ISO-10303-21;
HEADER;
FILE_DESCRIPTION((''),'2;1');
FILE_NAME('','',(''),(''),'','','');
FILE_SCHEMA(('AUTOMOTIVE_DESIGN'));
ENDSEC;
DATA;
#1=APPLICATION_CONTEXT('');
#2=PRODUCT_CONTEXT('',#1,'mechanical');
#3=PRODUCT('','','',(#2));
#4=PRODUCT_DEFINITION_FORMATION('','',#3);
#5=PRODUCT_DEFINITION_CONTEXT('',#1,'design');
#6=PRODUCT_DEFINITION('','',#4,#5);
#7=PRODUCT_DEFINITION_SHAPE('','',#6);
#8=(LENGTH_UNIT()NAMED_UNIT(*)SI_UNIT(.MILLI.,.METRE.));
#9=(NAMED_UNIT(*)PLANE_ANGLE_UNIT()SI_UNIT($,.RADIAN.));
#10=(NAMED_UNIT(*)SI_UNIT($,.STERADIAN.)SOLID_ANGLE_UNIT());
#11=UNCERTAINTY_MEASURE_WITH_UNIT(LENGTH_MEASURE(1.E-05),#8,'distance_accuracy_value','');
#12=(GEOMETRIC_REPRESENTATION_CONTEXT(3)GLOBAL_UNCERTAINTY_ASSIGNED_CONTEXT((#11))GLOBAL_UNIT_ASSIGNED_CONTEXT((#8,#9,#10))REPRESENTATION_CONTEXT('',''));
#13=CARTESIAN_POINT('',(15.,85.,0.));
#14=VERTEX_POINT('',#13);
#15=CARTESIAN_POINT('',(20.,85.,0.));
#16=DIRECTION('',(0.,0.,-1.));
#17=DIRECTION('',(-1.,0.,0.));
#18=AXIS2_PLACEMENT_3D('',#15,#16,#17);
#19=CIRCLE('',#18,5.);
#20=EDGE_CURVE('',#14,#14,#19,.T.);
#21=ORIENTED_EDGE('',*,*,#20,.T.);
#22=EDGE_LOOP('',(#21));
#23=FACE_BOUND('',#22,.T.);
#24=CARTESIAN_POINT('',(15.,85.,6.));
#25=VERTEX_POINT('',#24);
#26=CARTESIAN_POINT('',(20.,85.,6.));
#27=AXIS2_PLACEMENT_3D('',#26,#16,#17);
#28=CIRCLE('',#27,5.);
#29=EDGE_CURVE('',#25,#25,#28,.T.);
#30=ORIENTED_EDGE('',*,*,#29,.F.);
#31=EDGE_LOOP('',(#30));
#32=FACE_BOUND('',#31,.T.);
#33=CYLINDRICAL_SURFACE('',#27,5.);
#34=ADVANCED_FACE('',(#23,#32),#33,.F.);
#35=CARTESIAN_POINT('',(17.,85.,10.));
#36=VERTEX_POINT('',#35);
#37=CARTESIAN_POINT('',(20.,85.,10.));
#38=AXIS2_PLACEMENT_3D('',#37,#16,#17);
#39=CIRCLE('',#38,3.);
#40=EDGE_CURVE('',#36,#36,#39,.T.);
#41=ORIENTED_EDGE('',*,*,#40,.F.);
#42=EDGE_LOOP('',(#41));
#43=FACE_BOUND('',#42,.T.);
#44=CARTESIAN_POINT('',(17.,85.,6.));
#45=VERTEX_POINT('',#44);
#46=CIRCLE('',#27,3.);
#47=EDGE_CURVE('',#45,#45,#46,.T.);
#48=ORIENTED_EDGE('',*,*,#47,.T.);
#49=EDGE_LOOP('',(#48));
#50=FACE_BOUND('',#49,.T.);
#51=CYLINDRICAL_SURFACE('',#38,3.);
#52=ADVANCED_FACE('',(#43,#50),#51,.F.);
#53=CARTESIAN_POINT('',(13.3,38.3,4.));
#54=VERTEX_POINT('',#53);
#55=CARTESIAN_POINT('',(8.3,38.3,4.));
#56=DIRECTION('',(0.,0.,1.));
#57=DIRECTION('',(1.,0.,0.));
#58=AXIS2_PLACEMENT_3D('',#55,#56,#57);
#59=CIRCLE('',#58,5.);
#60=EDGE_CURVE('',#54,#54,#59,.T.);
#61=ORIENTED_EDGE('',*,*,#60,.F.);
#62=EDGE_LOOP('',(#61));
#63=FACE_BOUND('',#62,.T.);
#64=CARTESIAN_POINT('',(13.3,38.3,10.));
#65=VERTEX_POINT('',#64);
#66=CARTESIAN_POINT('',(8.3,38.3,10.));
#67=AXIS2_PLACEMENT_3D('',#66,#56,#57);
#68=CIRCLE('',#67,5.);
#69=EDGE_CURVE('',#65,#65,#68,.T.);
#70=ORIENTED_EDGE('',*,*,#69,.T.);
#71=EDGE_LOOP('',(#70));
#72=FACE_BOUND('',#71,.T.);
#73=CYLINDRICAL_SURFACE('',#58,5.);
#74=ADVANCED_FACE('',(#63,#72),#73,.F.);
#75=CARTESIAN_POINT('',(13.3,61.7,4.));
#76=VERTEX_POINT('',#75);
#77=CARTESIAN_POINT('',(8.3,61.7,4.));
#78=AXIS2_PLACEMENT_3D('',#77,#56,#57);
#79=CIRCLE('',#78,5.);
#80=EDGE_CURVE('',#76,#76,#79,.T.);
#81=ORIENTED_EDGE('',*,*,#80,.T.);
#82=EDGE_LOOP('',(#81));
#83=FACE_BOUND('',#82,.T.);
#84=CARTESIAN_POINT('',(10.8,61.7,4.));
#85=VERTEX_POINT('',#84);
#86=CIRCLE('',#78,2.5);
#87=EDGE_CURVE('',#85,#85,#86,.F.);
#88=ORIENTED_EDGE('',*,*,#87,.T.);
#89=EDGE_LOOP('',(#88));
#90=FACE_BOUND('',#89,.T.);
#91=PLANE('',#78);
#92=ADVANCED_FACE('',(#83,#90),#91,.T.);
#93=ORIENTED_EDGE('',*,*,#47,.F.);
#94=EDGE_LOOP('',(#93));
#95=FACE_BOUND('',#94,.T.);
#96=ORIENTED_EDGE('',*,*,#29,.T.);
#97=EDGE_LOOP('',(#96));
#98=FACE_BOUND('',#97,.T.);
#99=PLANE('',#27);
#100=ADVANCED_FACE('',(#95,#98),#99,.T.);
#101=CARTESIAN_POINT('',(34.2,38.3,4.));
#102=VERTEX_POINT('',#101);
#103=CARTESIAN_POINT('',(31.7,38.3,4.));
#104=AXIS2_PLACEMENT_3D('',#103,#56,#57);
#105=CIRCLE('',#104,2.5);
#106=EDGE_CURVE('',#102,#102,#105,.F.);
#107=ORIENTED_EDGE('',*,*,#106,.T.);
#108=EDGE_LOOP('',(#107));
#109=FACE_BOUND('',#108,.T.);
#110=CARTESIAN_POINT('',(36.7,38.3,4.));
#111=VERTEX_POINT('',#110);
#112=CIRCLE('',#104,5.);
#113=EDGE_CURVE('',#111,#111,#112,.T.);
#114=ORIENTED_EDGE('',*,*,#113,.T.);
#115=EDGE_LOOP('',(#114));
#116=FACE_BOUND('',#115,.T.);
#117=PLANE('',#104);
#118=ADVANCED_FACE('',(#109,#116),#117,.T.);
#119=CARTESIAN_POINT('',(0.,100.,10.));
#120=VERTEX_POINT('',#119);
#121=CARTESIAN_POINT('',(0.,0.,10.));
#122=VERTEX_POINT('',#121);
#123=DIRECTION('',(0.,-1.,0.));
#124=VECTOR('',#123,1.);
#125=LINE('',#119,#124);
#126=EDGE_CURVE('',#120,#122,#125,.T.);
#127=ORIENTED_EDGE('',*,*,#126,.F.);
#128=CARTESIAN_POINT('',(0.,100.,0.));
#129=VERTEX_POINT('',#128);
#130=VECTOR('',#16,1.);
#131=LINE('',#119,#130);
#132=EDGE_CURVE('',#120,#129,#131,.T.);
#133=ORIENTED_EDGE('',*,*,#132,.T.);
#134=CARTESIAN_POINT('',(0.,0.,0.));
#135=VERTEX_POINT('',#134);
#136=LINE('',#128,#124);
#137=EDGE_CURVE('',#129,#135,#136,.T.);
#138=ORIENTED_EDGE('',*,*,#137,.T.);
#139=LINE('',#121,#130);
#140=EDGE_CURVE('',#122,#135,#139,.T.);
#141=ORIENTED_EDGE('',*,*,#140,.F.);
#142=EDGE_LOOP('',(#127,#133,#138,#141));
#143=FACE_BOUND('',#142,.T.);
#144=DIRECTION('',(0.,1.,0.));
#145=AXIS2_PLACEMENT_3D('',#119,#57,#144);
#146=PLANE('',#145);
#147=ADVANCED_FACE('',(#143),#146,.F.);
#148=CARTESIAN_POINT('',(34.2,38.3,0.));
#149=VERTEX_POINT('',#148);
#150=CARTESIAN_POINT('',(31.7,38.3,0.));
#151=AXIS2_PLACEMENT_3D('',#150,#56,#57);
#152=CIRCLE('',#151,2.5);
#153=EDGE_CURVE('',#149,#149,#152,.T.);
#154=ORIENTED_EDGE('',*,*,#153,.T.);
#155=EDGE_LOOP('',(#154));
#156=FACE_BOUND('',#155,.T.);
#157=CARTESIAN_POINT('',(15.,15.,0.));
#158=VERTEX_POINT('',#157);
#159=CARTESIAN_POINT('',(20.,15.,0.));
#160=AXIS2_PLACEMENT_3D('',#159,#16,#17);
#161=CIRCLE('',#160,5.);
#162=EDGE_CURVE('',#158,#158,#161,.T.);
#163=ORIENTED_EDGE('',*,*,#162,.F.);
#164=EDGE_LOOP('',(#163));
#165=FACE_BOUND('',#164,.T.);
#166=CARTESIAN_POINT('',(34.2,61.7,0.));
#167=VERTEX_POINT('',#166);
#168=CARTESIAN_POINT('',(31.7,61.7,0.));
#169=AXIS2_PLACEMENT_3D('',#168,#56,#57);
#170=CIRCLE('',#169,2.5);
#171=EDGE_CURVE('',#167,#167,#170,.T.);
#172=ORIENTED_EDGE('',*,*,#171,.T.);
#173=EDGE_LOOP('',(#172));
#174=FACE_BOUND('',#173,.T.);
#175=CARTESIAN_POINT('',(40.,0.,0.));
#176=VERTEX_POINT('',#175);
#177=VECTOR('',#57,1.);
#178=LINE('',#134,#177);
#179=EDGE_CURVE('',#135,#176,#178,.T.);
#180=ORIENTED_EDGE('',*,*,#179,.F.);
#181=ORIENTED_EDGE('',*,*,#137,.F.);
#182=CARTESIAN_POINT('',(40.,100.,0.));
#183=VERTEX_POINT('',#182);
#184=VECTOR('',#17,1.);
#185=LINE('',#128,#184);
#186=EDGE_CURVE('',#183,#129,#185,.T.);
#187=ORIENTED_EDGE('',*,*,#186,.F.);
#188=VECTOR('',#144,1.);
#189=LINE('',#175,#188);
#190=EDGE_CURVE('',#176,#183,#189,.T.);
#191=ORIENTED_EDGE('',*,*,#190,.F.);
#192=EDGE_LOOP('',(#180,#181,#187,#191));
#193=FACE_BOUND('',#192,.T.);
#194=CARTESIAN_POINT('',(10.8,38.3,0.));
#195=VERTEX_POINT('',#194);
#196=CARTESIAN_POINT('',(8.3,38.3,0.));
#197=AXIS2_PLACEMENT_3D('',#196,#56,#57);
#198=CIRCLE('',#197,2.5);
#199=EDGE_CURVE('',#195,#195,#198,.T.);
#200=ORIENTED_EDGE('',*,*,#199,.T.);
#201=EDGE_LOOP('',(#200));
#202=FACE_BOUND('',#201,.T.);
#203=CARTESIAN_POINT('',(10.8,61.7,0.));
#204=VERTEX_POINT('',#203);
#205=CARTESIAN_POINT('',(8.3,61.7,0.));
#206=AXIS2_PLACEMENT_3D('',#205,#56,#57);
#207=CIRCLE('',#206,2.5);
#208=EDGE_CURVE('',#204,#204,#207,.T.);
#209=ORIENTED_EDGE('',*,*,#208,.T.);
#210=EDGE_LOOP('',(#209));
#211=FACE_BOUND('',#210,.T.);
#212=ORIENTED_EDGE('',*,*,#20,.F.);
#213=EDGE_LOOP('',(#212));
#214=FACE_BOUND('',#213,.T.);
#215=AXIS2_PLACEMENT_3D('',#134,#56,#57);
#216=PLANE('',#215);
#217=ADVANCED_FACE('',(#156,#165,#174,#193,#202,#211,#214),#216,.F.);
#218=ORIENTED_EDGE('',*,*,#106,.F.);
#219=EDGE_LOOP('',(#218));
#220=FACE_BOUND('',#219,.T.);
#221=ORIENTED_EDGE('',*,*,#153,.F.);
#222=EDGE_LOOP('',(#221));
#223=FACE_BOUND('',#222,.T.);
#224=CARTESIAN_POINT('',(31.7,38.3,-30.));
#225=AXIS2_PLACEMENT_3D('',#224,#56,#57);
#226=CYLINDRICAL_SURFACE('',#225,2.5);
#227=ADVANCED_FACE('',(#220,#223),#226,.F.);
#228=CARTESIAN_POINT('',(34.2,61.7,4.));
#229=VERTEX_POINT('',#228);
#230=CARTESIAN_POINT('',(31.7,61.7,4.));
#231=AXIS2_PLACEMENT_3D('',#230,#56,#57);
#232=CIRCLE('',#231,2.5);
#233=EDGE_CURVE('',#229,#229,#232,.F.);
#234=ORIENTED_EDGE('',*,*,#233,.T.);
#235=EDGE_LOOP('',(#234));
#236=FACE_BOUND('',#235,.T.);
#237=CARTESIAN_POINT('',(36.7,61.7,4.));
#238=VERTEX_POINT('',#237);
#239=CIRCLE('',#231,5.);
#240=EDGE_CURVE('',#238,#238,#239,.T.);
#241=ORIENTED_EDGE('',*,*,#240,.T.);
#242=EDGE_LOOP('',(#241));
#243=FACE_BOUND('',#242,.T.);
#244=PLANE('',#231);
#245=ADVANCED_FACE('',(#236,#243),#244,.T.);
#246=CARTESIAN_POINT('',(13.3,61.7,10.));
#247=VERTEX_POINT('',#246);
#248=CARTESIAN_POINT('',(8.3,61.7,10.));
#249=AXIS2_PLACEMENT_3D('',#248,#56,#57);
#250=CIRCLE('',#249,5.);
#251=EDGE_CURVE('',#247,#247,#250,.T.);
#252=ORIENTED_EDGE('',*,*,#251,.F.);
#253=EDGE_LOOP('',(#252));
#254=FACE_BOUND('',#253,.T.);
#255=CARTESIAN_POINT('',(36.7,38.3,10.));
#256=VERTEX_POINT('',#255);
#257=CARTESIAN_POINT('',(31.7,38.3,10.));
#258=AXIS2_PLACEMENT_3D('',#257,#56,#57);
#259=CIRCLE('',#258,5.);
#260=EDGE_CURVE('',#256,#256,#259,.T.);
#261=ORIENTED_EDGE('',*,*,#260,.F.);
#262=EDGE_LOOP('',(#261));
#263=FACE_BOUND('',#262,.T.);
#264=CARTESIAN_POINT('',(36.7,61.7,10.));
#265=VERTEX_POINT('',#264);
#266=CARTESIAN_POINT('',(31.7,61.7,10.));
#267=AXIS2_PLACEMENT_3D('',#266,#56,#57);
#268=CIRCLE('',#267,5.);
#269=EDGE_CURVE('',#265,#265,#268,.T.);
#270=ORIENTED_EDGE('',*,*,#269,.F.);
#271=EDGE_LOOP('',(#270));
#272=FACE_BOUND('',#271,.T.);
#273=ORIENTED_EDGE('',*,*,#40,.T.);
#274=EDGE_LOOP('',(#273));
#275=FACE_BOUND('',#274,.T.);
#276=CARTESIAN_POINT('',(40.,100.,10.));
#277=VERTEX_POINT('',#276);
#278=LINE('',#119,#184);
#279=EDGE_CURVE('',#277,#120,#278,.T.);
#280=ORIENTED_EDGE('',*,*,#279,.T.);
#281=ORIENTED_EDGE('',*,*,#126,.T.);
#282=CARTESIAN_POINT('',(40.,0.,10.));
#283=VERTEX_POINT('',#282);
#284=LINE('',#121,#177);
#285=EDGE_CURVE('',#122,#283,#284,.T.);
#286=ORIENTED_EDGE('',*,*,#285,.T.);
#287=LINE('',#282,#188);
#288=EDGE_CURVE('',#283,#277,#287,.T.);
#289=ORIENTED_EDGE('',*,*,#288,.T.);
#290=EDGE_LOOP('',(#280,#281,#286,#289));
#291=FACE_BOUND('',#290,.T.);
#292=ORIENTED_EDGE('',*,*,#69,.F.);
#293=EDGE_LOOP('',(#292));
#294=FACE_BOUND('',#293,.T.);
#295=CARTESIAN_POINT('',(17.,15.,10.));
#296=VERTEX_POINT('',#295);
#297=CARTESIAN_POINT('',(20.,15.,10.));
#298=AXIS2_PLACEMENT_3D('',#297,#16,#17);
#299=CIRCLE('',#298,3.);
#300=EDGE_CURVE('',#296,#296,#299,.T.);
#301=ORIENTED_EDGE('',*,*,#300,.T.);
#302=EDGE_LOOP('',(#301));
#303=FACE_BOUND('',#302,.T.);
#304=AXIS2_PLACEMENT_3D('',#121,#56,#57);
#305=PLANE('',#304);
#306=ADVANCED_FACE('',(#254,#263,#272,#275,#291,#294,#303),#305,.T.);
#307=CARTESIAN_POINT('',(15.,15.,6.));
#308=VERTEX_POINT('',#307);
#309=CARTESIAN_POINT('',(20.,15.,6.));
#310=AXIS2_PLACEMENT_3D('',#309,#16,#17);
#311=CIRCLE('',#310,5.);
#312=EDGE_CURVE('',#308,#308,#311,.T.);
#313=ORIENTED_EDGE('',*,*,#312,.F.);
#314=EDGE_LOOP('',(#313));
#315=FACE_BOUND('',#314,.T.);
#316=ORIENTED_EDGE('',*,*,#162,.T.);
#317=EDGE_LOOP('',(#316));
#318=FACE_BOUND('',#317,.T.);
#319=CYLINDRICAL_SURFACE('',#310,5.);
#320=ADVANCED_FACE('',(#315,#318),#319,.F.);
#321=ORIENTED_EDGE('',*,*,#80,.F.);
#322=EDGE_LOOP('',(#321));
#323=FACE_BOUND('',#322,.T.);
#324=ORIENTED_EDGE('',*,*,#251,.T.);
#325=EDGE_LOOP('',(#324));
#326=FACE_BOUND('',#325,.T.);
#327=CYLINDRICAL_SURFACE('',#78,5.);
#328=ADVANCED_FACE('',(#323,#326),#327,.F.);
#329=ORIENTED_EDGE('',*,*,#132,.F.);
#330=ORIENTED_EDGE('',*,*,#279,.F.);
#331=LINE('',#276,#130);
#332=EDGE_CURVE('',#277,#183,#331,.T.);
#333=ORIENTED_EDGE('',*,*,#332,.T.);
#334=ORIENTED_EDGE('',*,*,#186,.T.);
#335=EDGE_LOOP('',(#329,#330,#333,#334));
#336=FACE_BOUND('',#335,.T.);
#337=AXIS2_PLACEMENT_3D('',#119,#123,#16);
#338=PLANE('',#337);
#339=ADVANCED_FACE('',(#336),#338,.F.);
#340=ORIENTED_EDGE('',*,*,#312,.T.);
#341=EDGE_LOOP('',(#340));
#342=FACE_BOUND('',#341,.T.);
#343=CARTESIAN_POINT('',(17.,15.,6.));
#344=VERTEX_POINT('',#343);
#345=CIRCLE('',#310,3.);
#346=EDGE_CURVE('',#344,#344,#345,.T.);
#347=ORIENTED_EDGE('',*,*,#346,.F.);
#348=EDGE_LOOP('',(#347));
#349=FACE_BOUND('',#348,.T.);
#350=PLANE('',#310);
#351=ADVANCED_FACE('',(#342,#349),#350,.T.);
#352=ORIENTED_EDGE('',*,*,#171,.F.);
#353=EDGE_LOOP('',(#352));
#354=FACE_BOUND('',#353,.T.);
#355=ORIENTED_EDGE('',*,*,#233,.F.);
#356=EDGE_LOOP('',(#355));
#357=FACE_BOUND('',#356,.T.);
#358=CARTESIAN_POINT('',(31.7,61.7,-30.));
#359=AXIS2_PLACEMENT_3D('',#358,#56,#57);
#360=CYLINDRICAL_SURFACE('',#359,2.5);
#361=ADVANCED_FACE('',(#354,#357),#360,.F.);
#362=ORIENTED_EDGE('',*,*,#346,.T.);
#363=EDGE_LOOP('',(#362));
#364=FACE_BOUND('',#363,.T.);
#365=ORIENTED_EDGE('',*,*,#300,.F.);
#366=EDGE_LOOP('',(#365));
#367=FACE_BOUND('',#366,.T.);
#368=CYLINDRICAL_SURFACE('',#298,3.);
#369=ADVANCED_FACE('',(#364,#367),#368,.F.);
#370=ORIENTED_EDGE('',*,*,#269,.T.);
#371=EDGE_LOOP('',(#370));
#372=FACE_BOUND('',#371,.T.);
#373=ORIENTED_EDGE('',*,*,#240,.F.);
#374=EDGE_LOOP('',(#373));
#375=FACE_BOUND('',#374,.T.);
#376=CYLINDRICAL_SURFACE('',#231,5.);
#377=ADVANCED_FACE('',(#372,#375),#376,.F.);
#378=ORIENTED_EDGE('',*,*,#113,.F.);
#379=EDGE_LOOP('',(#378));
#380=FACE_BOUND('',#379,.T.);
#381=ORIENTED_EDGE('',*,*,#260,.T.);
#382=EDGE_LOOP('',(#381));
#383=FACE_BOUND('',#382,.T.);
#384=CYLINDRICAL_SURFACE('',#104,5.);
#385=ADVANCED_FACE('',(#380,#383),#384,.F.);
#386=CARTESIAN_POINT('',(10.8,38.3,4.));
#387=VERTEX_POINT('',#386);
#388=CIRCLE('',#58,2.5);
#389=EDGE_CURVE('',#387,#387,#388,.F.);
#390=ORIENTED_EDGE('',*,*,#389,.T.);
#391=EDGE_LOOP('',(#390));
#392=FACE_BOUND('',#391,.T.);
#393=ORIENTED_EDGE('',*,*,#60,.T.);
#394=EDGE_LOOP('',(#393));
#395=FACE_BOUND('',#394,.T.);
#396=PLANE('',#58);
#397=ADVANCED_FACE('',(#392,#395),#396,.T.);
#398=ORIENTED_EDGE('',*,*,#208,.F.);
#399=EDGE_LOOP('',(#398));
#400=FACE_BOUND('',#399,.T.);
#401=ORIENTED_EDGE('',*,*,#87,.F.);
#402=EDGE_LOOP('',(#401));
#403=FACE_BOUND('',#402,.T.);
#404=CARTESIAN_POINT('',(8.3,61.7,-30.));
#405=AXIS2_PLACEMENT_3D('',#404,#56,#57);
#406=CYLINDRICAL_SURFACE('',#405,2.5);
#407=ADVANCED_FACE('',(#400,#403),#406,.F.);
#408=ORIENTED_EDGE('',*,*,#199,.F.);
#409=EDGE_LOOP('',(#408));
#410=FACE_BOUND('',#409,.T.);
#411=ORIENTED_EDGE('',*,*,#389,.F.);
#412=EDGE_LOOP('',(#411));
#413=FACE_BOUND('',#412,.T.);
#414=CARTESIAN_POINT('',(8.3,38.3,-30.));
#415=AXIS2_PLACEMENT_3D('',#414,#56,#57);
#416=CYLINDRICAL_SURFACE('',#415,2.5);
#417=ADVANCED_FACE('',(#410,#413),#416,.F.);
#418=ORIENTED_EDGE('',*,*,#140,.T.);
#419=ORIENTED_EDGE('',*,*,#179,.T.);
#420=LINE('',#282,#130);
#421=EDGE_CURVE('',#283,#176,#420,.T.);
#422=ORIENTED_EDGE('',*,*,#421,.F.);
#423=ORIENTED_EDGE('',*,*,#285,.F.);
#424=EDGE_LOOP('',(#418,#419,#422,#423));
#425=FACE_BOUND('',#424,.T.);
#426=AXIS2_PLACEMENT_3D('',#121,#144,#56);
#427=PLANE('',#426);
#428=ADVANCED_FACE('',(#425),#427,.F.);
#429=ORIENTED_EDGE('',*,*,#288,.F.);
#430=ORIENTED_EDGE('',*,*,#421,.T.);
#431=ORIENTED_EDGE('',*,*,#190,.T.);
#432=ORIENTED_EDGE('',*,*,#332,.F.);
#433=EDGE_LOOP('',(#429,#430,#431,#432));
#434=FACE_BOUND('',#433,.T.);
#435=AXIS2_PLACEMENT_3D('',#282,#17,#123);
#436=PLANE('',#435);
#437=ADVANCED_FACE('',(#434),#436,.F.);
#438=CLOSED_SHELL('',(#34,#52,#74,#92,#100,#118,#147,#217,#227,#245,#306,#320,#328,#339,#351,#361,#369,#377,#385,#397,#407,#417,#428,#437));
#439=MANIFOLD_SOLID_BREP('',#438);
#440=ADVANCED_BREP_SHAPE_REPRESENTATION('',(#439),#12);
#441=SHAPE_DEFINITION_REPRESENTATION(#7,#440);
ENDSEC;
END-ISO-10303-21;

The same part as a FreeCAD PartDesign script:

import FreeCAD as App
import Part
import Sketcher
Q = App.Units.Quantity


def add_polygon(sketch, points):
    """Adds a closed chain of lines whose ends are joined by coincident constraints."""
    first, n = sketch.GeometryCount, len(points)
    for a, b in zip(points, points[1:] + points[:1]):
        sketch.addGeometry(Part.LineSegment(App.Vector(*a, 0), App.Vector(*b, 0)), False)
    for i in range(n):
        sketch.addConstraint(Sketcher.Constraint("Coincident", first + i, 2, first + (i + 1) % n, 1))

doc = App.newDocument("Part")
body = doc.addObject("PartDesign::Body", "Body")

sketch1 = doc.addObject("Sketcher::SketchObject", "Sketch")
body.addObject(sketch1)
sketch1.AttachmentSupport = (doc.XY_Plane, [""])
sketch1.MapMode = "FlatFace"
add_polygon(sketch1, [(0, 100), (0, 0), (40, 0), (40, 100)])
sketch1.addConstraint([
    Sketcher.Constraint("Vertical", 0),
    Sketcher.Constraint("Horizontal", 1),
    Sketcher.Constraint("Vertical", 2),
    Sketcher.Constraint("Horizontal", 3),
    Sketcher.Constraint("Coincident", 0, 2, -1, 1),
    Sketcher.Constraint("DistanceX", 1, 1, 1, 2, Q("40 mm")),
    Sketcher.Constraint("DistanceY", 0, 2, 0, 1, Q("100 mm")),
])
pad1 = doc.addObject("PartDesign::Pad", "Pad")
body.addObject(pad1)
pad1.Profile = sketch1
pad1.Length = 10

sketch2 = doc.addObject("Sketcher::SketchObject", "Sketch001")
body.addObject(sketch2)
sketch2.AttachmentSupport = (doc.XY_Plane, [""])
sketch2.MapMode = "FlatFace"
sketch2.AttachmentOffset = App.Placement(App.Vector(0, 0, 10), App.Rotation())
sketch2.addGeometry([
    Part.Circle(App.Vector(8.3, 61.7, 0), App.Vector(0, 0, 1), 2.5),
    Part.Circle(App.Vector(31.7, 61.7, 0), App.Vector(0, 0, 1), 2.5),
    Part.Circle(App.Vector(31.7, 38.3, 0), App.Vector(0, 0, 1), 2.5),
    Part.Circle(App.Vector(8.3, 38.3, 0), App.Vector(0, 0, 1), 2.5),
], False)
sketch2.addConstraint([
    Sketcher.Constraint("Equal", 0, 1),
    Sketcher.Constraint("Equal", 1, 2),
    Sketcher.Constraint("Equal", 2, 3),
    Sketcher.Constraint("Horizontal", 0, 3, 1, 3),
    Sketcher.Constraint("Horizontal", 2, 3, 3, 3),
    Sketcher.Constraint("Vertical", 1, 3, 2, 3),
    Sketcher.Constraint("Vertical", 0, 3, 3, 3),
    Sketcher.Constraint("Diameter", 0, Q("5 mm")),
    Sketcher.Constraint("DistanceX", -1, 1, 0, 3, Q("8.3 mm")),
    Sketcher.Constraint("DistanceY", -1, 1, 0, 3, Q("61.7 mm")),
    Sketcher.Constraint("DistanceX", -1, 1, 1, 3, Q("31.7 mm")),
    Sketcher.Constraint("DistanceY", -1, 1, 2, 3, Q("38.3 mm")),
])
pocket1 = doc.addObject("PartDesign::Pocket", "Pocket")
body.addObject(pocket1)
pocket1.Profile = sketch2
pocket1.Length = 40

sketch3 = doc.addObject("Sketcher::SketchObject", "Sketch002")
body.addObject(sketch3)
sketch3.AttachmentSupport = (doc.XY_Plane, [""])
sketch3.MapMode = "FlatFace"
sketch3.AttachmentOffset = App.Placement(App.Vector(0, 0, 10), App.Rotation())
sketch3.addGeometry([
    Part.Circle(App.Vector(8, 62, 0), App.Vector(0, 0, 1), 5),
    Part.Circle(App.Vector(32, 62, 0), App.Vector(0, 0, 1), 5),
    Part.Circle(App.Vector(32, 38, 0), App.Vector(0, 0, 1), 5),
    Part.Circle(App.Vector(8, 38, 0), App.Vector(0, 0, 1), 5),
], False)
sketch3.addConstraint([
    Sketcher.Constraint("Equal", 0, 1),
    Sketcher.Constraint("Equal", 1, 2),
    Sketcher.Constraint("Equal", 2, 3),
    Sketcher.Constraint("Horizontal", 0, 3, 1, 3),
    Sketcher.Constraint("Horizontal", 2, 3, 3, 3),
    Sketcher.Constraint("Vertical", 1, 3, 2, 3),
    Sketcher.Constraint("Vertical", 0, 3, 3, 3),
    Sketcher.Constraint("Diameter", 0, Q("10 mm")),
    Sketcher.Constraint("DistanceX", -1, 1, 0, 3, Q("8.3 mm")),
    Sketcher.Constraint("DistanceY", -1, 1, 0, 3, Q("61.7 mm")),
    Sketcher.Constraint("DistanceX", -1, 1, 1, 3, Q("31.7 mm")),
    Sketcher.Constraint("DistanceY", -1, 1, 2, 3, Q("38.3 mm")),
])
pocket2 = doc.addObject("PartDesign::Pocket", "Pocket001")
body.addObject(pocket2)
pocket2.Profile = sketch3
pocket2.Length = 6

sketch4 = doc.addObject("Sketcher::SketchObject", "Sketch003")
body.addObject(sketch4)
sketch4.AttachmentSupport = (doc.XY_Plane, [""])
sketch4.MapMode = "FlatFace"
sketch4.addGeometry([
    Part.Circle(App.Vector(20, 85, 0), App.Vector(0, 0, 1), 5),
    Part.Circle(App.Vector(20, 15, 0), App.Vector(0, 0, 1), 5),
], False)
sketch4.addConstraint([
    Sketcher.Constraint("Equal", 0, 1),
    Sketcher.Constraint("Vertical", 0, 3, 1, 3),
    Sketcher.Constraint("Diameter", 0, Q("10 mm")),
    Sketcher.Constraint("DistanceX", -1, 1, 0, 3, Q("20 mm")),
    Sketcher.Constraint("DistanceY", -1, 1, 0, 3, Q("85 mm")),
    Sketcher.Constraint("DistanceY", -1, 1, 1, 3, Q("15 mm")),
])
pocket3 = doc.addObject("PartDesign::Pocket", "Pocket002")
body.addObject(pocket3)
pocket3.Profile = sketch4
pocket3.Length = 6
pocket3.Reversed = True

sketch5 = doc.addObject("Sketcher::SketchObject", "Sketch004")
body.addObject(sketch5)
sketch5.AttachmentSupport = (doc.XY_Plane, [""])
sketch5.MapMode = "FlatFace"
sketch5.AttachmentOffset = App.Placement(App.Vector(0, 0, 6), App.Rotation())
sketch5.addGeometry([
    Part.Circle(App.Vector(20, 15, 0), App.Vector(0, 0, 1), 3),
    Part.Circle(App.Vector(20, 85, 0), App.Vector(0, 0, 1), 3),
], False)
sketch5.addConstraint([
    Sketcher.Constraint("Equal", 0, 1),
    Sketcher.Constraint("Vertical", 0, 3, 1, 3),
    Sketcher.Constraint("Diameter", 0, Q("6 mm")),
    Sketcher.Constraint("DistanceX", -1, 1, 0, 3, Q("20 mm")),
    Sketcher.Constraint("DistanceY", -1, 1, 0, 3, Q("15 mm")),
    Sketcher.Constraint("DistanceY", -1, 1, 1, 3, Q("85 mm")),
])
pocket4 = doc.addObject("PartDesign::Pocket", "Pocket003")
body.addObject(pocket4)
pocket4.Profile = sketch5
pocket4.Type = "ThroughAll"
pocket4.Reversed = True

doc.recompute()
